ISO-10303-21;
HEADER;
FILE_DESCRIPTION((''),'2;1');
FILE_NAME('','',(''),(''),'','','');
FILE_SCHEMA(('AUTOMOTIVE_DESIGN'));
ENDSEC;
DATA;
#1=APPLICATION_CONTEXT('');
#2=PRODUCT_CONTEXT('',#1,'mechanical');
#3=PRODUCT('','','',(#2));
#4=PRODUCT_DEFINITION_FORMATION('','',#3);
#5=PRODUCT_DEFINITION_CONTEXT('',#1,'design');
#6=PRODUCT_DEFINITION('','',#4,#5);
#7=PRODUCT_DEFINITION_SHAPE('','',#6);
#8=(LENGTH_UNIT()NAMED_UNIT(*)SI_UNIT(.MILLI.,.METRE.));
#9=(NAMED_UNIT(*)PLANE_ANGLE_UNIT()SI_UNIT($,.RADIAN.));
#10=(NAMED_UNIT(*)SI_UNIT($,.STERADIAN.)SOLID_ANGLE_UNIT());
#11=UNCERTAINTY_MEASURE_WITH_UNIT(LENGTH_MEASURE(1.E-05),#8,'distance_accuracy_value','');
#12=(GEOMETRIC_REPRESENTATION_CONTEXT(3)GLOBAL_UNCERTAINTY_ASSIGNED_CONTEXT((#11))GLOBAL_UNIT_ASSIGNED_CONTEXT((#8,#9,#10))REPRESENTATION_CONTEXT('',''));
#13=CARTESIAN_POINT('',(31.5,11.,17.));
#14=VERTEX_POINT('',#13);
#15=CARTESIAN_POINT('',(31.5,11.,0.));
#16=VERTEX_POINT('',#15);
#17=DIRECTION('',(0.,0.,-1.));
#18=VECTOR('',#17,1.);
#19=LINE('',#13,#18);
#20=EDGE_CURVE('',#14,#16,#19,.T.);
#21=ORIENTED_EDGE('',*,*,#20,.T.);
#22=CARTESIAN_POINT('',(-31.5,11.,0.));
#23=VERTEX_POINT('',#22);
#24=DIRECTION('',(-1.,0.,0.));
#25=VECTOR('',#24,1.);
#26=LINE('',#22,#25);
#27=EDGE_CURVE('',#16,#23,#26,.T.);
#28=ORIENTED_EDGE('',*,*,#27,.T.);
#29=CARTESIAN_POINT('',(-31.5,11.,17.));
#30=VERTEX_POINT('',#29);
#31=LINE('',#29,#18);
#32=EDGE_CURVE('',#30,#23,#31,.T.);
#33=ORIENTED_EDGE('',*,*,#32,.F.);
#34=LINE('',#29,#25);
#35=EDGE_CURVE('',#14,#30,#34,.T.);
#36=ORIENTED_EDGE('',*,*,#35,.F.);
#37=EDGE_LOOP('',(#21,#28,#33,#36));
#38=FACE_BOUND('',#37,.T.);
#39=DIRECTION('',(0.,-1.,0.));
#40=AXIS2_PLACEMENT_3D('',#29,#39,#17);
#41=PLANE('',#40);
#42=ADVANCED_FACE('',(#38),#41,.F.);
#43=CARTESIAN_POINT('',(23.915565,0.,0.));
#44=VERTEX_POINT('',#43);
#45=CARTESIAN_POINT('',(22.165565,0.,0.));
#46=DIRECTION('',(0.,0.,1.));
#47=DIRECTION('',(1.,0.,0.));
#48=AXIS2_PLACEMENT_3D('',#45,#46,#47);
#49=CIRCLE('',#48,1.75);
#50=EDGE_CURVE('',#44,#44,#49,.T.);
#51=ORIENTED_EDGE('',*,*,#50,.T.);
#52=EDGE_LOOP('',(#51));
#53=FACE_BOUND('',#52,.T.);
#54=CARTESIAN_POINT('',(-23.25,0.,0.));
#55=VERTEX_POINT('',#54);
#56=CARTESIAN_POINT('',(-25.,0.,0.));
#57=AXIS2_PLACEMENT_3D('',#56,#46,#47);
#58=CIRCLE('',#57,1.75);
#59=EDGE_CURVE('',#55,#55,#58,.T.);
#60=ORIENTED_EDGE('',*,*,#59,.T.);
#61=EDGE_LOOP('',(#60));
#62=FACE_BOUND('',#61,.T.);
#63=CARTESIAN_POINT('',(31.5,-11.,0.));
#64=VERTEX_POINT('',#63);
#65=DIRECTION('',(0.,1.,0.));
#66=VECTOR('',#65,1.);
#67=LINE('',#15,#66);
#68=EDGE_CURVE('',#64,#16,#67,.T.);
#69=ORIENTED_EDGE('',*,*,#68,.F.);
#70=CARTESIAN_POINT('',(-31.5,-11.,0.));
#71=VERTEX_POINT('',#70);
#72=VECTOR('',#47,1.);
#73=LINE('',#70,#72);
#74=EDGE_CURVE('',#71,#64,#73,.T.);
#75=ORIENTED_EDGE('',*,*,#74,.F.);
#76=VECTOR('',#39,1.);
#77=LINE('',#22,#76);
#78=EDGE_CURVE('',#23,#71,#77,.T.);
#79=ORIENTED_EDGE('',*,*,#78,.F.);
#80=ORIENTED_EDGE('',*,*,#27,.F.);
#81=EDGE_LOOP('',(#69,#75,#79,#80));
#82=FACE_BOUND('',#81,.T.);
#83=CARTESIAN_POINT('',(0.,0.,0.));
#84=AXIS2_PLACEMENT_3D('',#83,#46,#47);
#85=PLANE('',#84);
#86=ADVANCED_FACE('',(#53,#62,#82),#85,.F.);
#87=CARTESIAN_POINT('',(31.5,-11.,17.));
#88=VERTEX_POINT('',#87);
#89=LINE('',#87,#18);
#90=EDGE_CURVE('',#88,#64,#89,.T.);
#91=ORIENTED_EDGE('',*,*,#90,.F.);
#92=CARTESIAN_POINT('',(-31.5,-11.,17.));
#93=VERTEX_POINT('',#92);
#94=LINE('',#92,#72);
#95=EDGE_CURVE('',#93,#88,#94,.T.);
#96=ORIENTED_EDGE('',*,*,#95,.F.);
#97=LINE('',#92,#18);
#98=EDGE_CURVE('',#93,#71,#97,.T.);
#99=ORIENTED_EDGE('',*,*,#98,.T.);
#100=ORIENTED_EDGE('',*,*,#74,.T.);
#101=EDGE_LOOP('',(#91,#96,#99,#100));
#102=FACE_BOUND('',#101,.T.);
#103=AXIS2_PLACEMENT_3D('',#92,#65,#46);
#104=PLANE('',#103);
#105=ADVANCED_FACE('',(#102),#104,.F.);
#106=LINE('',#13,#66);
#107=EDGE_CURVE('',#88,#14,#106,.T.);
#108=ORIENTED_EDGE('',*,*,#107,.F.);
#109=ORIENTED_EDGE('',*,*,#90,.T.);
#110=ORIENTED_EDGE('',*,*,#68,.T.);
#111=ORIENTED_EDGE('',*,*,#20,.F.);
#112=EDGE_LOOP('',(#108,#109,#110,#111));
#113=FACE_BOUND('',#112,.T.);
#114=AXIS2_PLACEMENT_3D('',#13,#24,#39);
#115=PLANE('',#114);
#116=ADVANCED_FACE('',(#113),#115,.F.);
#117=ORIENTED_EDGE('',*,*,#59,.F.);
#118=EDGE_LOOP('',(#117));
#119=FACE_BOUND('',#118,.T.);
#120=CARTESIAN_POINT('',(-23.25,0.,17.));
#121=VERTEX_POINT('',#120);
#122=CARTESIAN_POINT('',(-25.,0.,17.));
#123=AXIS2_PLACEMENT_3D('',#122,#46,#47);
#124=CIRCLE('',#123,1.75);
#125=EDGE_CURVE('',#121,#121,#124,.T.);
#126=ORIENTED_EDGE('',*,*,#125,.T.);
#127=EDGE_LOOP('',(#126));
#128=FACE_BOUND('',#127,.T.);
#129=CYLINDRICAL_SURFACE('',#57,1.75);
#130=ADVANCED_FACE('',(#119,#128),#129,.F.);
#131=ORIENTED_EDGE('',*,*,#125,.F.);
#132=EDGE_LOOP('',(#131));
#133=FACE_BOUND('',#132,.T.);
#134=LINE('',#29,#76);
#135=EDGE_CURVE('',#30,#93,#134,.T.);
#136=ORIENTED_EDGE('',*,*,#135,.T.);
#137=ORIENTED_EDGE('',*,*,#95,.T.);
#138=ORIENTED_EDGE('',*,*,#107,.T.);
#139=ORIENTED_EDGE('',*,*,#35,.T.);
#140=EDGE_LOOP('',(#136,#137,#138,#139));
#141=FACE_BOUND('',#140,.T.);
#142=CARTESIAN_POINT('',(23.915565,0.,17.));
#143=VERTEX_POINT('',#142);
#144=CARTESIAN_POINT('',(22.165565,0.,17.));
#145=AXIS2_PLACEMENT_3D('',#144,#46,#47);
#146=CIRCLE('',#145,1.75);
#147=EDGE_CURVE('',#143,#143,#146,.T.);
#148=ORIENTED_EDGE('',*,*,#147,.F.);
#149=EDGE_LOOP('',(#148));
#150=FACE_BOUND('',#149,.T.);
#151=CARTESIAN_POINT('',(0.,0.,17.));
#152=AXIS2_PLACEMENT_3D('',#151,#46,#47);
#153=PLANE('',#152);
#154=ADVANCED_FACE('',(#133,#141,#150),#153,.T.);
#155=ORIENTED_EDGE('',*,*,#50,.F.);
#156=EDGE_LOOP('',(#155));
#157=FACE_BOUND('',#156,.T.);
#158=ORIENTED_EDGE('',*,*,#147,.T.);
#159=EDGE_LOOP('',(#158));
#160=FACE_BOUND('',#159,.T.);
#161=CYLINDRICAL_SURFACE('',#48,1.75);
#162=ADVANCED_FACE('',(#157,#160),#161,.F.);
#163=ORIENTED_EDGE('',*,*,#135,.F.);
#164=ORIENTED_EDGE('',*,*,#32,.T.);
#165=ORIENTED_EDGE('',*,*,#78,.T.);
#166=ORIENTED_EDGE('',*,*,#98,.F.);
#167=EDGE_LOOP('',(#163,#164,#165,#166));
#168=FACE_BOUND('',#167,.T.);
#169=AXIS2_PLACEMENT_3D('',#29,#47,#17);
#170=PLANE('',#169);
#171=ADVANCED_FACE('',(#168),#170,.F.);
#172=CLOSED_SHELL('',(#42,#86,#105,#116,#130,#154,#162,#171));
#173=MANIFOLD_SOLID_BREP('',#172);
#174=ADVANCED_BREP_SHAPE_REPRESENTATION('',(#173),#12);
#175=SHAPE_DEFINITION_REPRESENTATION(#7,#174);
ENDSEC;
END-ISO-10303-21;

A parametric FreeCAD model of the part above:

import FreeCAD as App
import Part
import Sketcher


def add_polygon(sketch, points):
    """Adds a closed chain of lines whose ends are joined by coincident constraints."""
    first, n = sketch.GeometryCount, len(points)
    for a, b in zip(points, points[1:] + points[:1]):
        sketch.addGeometry(Part.LineSegment(App.Vector(*a, 0), App.Vector(*b, 0)), False)
    for i in range(n):
        sketch.addConstraint(Sketcher.Constraint("Coincident", first + i, 2, first + (i + 1) % n, 1))

doc = App.newDocument("Part")
body = doc.addObject("PartDesign::Body", "Body")

sketch1 = body.newObject("Sketcher::SketchObject", "Sketch")
sketch1.AttachmentSupport = (doc.getObject("XY_Plane"), [""])
sketch1.MapMode = "FlatFace"
add_polygon(sketch1, [(-32, 11), (-32, -11), (32, -11), (32, 11)])
sketch1.addConstraint([
    Sketcher.Constraint("Vertical", 0),
    Sketcher.Constraint("Horizontal", 1),
    Sketcher.Constraint("Vertical", 2),
    Sketcher.Constraint("Horizontal", 3),
    Sketcher.Constraint("Symmetric", 0, 2, 2, 2, -1, 1),
    Sketcher.Constraint("DistanceX", 1, 1, 1, 2, 63.0),
    Sketcher.Constraint("DistanceY", 0, 2, 0, 1, 22.0),
])
pad1 = body.newObject("PartDesign::Pad", "Pad")
pad1.Profile = sketch1
pad1.Length = 17

sketch2 = body.newObject("Sketcher::SketchObject", "Sketch001")
sketch2.AttachmentSupport = (doc.getObject("XY_Plane"), [""])
sketch2.MapMode = "FlatFace"
sketch2.AttachmentOffset = App.Placement(App.Vector(0, 0, 17), App.Rotation())
sketch2.addGeometry([
    Part.Circle(App.Vector(-25, 0, 0), App.Vector(0, 0, 1), 1.8),
    Part.Circle(App.Vector(22.2, 0, 0), App.Vector(0, 0, 1), 1.8),
], False)
sketch2.addConstraint([
    Sketcher.Constraint("Equal", 0, 1),
    Sketcher.Constraint("PointOnObject", 0, 3, -1),
    Sketcher.Constraint("PointOnObject", 1, 3, -1),
    Sketcher.Constraint("Diameter", 0, 3.5),
    Sketcher.Constraint("DistanceX", 0, 3, -1, 1, 25.0),
    Sketcher.Constraint("DistanceX", -1, 1, 1, 3, 22.165565),
])
pocket1 = body.newObject("PartDesign::Pocket", "Pocket")
pocket1.Profile = sketch2
pocket1.Type = "ThroughAll"

doc.recompute()
